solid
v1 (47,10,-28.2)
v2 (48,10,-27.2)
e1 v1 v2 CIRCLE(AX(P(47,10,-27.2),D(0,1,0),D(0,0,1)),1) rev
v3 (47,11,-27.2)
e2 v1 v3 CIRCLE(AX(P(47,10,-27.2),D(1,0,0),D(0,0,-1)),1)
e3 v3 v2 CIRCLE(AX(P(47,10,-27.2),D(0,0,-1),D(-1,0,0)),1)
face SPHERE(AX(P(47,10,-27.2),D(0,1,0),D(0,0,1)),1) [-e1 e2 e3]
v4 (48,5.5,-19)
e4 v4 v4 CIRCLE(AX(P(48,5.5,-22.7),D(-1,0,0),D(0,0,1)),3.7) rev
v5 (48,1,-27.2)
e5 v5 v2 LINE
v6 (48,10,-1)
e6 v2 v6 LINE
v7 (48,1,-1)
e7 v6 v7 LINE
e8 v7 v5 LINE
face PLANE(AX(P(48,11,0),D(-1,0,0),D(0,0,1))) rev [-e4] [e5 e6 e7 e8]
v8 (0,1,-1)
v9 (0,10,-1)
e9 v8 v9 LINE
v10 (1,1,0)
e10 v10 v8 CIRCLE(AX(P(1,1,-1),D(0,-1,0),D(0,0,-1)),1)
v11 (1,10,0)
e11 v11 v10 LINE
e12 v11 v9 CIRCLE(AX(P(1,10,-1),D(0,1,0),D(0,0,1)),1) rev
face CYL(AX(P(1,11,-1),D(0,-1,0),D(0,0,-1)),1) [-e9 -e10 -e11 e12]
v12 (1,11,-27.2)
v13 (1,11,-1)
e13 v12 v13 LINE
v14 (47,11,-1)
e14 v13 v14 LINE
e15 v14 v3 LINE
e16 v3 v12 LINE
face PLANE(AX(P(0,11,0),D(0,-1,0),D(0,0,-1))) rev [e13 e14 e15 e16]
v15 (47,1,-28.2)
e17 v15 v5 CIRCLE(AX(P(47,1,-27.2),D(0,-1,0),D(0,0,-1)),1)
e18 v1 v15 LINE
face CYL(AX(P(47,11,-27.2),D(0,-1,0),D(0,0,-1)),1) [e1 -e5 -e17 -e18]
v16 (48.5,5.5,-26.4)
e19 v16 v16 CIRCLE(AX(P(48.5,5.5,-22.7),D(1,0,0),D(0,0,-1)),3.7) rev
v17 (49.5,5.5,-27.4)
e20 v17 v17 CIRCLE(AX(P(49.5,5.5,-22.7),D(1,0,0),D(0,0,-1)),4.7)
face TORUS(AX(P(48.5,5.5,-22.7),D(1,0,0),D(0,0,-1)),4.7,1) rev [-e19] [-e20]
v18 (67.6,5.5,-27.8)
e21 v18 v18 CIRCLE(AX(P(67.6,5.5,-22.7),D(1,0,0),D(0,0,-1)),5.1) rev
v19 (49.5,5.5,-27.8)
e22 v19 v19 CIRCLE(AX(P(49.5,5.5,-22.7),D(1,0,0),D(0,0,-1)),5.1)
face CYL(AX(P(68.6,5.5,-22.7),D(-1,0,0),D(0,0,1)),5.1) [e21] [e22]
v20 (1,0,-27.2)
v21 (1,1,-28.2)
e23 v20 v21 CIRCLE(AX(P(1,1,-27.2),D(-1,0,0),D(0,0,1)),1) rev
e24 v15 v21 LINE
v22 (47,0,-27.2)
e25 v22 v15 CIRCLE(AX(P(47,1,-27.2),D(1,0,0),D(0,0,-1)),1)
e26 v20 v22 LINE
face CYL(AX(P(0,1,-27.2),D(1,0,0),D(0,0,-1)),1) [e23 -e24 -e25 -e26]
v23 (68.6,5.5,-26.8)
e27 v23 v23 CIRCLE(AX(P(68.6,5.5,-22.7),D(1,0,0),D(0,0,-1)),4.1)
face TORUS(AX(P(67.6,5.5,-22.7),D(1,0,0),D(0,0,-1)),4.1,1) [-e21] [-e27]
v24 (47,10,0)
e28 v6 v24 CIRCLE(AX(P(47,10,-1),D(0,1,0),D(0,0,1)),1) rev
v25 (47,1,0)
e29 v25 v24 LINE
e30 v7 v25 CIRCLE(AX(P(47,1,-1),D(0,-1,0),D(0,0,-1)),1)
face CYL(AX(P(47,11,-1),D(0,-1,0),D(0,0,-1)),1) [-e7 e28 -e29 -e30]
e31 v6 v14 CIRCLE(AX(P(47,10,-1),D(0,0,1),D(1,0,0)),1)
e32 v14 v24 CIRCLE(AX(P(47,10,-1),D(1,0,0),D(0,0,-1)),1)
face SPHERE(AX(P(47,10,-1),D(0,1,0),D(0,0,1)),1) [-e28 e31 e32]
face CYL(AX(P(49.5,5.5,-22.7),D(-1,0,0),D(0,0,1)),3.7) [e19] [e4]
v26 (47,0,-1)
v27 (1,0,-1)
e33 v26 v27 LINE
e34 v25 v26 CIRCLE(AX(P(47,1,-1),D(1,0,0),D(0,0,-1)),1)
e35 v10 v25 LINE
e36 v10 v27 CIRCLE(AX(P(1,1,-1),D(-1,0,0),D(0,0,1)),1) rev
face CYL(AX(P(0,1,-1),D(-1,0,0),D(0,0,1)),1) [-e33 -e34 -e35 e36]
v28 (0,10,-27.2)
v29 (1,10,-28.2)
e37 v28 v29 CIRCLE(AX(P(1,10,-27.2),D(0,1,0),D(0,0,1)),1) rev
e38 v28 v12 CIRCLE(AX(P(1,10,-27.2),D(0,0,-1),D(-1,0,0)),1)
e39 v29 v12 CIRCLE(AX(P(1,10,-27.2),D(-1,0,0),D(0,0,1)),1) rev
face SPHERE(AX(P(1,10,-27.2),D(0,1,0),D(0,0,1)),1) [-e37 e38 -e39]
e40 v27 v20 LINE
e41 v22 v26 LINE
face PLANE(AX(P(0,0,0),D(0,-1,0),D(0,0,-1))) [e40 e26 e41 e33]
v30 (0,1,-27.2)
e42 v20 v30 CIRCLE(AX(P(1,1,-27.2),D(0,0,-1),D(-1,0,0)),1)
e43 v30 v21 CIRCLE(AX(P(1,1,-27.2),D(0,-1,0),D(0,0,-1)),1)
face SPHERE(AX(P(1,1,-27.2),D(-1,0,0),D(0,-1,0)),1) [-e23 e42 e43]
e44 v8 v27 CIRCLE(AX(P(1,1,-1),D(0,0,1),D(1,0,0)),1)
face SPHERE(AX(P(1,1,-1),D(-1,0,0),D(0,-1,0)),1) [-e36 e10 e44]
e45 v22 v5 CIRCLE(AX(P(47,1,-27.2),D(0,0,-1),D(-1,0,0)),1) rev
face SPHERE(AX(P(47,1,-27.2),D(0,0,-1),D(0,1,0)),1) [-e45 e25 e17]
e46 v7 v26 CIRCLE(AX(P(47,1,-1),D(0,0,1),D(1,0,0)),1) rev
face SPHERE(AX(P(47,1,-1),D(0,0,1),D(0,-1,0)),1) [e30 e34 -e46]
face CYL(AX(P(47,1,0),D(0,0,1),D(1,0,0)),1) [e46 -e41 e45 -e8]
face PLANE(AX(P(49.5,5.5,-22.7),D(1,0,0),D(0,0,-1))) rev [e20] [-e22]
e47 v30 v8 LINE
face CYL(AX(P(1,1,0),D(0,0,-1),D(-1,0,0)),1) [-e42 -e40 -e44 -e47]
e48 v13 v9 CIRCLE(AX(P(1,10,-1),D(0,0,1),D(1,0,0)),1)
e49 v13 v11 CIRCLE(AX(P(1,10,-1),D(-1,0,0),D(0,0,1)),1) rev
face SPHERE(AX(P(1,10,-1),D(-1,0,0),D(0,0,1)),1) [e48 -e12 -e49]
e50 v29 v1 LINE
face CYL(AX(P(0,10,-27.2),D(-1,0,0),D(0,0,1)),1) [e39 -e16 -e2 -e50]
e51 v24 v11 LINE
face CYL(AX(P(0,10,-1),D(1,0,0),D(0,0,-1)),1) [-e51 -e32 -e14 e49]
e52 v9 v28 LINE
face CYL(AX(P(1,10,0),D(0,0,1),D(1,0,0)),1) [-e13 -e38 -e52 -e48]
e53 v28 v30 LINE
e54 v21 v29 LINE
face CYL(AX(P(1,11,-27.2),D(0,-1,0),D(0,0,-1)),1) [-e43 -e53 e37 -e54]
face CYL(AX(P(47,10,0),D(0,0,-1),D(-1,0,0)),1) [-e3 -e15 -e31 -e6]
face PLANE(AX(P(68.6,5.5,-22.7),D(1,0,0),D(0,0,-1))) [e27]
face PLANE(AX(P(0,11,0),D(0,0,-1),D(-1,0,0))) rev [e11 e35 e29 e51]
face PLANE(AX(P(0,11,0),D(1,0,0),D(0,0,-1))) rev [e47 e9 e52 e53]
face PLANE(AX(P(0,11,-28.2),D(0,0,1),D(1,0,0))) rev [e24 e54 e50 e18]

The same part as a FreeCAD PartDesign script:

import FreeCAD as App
import Part
import Sketcher
from FreeCAD import Vector
Q = App.Units.Quantity


def edges_at(feature, points):
    """Names of the edges that pass closest to the given points."""
    edges = feature.Shape.Edges
    near = lambda p: min(range(len(edges)), key=lambda i: edges[i].distToShape(Part.Vertex(*p))[0])
    return sorted({f"Edge{near(p) + 1}" for p in points})


def add_polygon(sketch, points):
    """Adds a closed chain of lines whose ends are joined by coincident constraints."""
    first, n = sketch.GeometryCount, len(points)
    for a, b in zip(points, points[1:] + points[:1]):
        sketch.addGeometry(Part.LineSegment(App.Vector(*a, 0), App.Vector(*b, 0)), False)
    for i in range(n):
        sketch.addConstraint(Sketcher.Constraint("Coincident", first + i, 2, first + (i + 1) % n, 1))

doc = App.newDocument("Part")
body = doc.addObject("PartDesign::Body", "Body")

# Sketch on XZ plane
sketch1 = body.newObject("Sketcher::SketchObject", "Sketch")
sketch1.AttachmentSupport = (doc.getObject("XZ_Plane"), [""])
sketch1.MapMode = "FlatFace"
add_polygon(sketch1, [(0, -28.2), (0, 0), (48, 0), (48, -28.2)])  # lines 0-3
sketch1.addConstraint([
    Sketcher.Constraint("Vertical", 0),
    Sketcher.Constraint("Horizontal", 1),
    Sketcher.Constraint("Vertical", 2),
    Sketcher.Constraint("Horizontal", 3),
    Sketcher.Constraint("Coincident", 0, 2, -1, 1),
    Sketcher.Constraint("DistanceX", 1, 1, 1, 2, Q("48 mm")),
    Sketcher.Constraint("DistanceY", 0, 1, 0, 2, Q("28.2 mm")),
])
pad1 = body.newObject("PartDesign::Pad", "Pad")
pad1.Profile = sketch1
pad1.Length = 11
pad1.Reversed = True

# Sketch on YZ plane
sketch2 = body.newObject("Sketcher::SketchObject", "Sketch001")
sketch2.AttachmentSupport = (doc.getObject("YZ_Plane"), [""])
sketch2.MapMode = "FlatFace"
sketch2.AttachmentOffset = App.Placement(Vector(0, 0, 48), App.Rotation())
sketch2.addGeometry(Part.Circle(Vector(5.5, -22.7, 0), Vector(0, 0, 1), 3.7), False)
sketch2.addConstraint([
    Sketcher.Constraint("Diameter", 0, Q("7.4 mm")),
    Sketcher.Constraint("DistanceX", -1, 1, 0, 3, Q("5.5 mm")),
    Sketcher.Constraint("DistanceY", 0, 3, -1, 1, Q("22.7 mm")),
])
pad2 = body.newObject("PartDesign::Pad", "Pad001")
pad2.Profile = sketch2
pad2.Length = 1.5

# Sketch on YZ plane
sketch3 = body.newObject("Sketcher::SketchObject", "Sketch002")
sketch3.AttachmentSupport = (doc.getObject("YZ_Plane"), [""])
sketch3.MapMode = "FlatFace"
sketch3.AttachmentOffset = App.Placement(Vector(0, 0, 49.5), App.Rotation())
sketch3.addGeometry(Part.Circle(Vector(5.5, -22.7, 0), Vector(0, 0, 1), 5.1), False)
sketch3.addConstraint([
    Sketcher.Constraint("Diameter", 0, Q("10.2 mm")),
    Sketcher.Constraint("DistanceX", -1, 1, 0, 3, Q("5.5 mm")),
    Sketcher.Constraint("DistanceY", 0, 3, -1, 1, Q("22.7 mm")),
])
pad3 = body.newObject("PartDesign::Pad", "Pad002")
pad3.Profile = sketch3
pad3.Length = 19.1
doc.recompute()

fillet = body.newObject("PartDesign::Fillet", "Fillet")
fillet.Base = (pad3, edges_at(pad3, [
    (48, 11, -14.1),
    (24, 11, -28.2),
    (0, 11, -14.1),
    (24, 0, -28.2),
    (48, 0, -14.1),
    (24, 0, 0),
    (0, 0, -14.1),
    (0, 5.5, -28.2),
    (48, 5.5, -28.2),
    (48, 5.5, 0),
    (0, 5.5, 0),
    (24, 11, 0),
]))
fillet.Radius = 1
doc.recompute()

fillet2 = body.newObject("PartDesign::Fillet", "Fillet001")
fillet2.Base = (fillet, edges_at(fillet, [(68.6, 5.5, -17.6)]))
fillet2.Radius = 1
doc.recompute()

fillet3 = body.newObject("PartDesign::Fillet", "Fillet002")
fillet3.Base = (fillet2, edges_at(fillet2, [(49.5, 5.5, -19)]))
fillet3.Radius = 1

doc.recompute()
